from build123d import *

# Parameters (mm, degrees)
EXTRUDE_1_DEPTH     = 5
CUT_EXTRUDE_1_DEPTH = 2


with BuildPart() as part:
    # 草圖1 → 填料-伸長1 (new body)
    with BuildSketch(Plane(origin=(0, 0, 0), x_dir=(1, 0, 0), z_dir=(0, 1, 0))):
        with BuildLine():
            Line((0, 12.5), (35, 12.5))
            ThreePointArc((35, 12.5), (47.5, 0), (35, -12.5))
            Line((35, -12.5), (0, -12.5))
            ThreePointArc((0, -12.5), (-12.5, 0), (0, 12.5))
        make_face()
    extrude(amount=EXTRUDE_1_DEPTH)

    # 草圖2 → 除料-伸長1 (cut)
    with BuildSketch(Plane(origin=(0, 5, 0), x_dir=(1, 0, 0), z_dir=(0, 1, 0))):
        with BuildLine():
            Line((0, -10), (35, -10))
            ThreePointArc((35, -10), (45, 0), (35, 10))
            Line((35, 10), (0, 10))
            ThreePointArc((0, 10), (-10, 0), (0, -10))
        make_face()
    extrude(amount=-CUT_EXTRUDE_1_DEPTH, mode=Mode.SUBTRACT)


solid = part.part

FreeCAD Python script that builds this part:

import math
import FreeCAD as App
import Part
import Sketcher
from FreeCAD import Vector
Q = App.Units.Quantity

doc = App.newDocument("Part")
body = doc.addObject("PartDesign::Body", "Body")

# Sketch on XZ plane
sketch1 = body.newObject("Sketcher::SketchObject", "Sketch")
sketch1.AttachmentSupport = (doc.getObject("XZ_Plane"), [""])
sketch1.MapMode = "FlatFace"
sketch1.addGeometry([
    Part.LineSegment(Vector(35, -12, 0), Vector(0, -12, 0)),
    Part.ArcOfCircle(Part.Circle(Vector(0, 0, 0), Vector(0, 0, 1), 12), math.radians(90), math.radians(270)),
    Part.LineSegment(Vector(0, 12, 0), Vector(35, 12, 0)),
    Part.ArcOfCircle(Part.Circle(Vector(35, 0, 0), Vector(0, 0, 1), 12), math.radians(-90), math.radians(90)),
], False)
sketch1.addConstraint([
    Sketcher.Constraint("Tangent", 0, 2, 1, 2),
    Sketcher.Constraint("Tangent", 1, 1, 2, 1),
    Sketcher.Constraint("Tangent", 2, 2, 3, 2),
    Sketcher.Constraint("Tangent", 3, 1, 0, 1),
    Sketcher.Constraint("Horizontal", 0),
    Sketcher.Constraint("Horizontal", 2),
    Sketcher.Constraint("Coincident", 1, 3, -1, 1),
    Sketcher.Constraint("Radius", 1, Q("12.5 mm")),
    Sketcher.Constraint("DistanceX", 0, 2, 0, 1, Q("35 mm")),
])
pad1 = body.newObject("PartDesign::Pad", "Pad")
pad1.Profile = sketch1
pad1.Length = 5
pad1.Reversed = True

# Sketch on XZ plane
sketch2 = body.newObject("Sketcher::SketchObject", "Sketch001")
sketch2.AttachmentSupport = (doc.getObject("XZ_Plane"), [""])
sketch2.MapMode = "FlatFace"
sketch2.AttachmentOffset = App.Placement(Vector(0, 0, -5), App.Rotation())
sketch2.addGeometry([
    Part.LineSegment(Vector(0, 10, 0), Vector(35, 10, 0)),
    Part.ArcOfCircle(Part.Circle(Vector(35, 0, 0), Vector(0, 0, 1), 10), math.radians(-90), math.radians(90)),
    Part.LineSegment(Vector(35, -10, 0), Vector(0, -10, 0)),
    Part.ArcOfCircle(Part.Circle(Vector(0, 0, 0), Vector(0, 0, 1), 10), math.radians(90), math.radians(270)),
], False)
sketch2.addConstraint([
    Sketcher.Constraint("Tangent", 0, 2, 1, 2),
    Sketcher.Constraint("Tangent", 1, 1, 2, 1),
    Sketcher.Constraint("Tangent", 2, 2, 3, 2),
    Sketcher.Constraint("Tangent", 3, 1, 0, 1),
    Sketcher.Constraint("Horizontal", 0),
    Sketcher.Constraint("Horizontal", 2),
    Sketcher.Constraint("Coincident", 3, 3, -1, 1),
    Sketcher.Constraint("Radius", 1, Q("10 mm")),
    Sketcher.Constraint("DistanceX", 0, 1, 0, 2, Q("35 mm")),
])
pocket1 = body.newObject("PartDesign::Pocket", "Pocket")
pocket1.Profile = sketch2
pocket1.Length = 2
pocket1.Reversed = True

doc.recompute()
